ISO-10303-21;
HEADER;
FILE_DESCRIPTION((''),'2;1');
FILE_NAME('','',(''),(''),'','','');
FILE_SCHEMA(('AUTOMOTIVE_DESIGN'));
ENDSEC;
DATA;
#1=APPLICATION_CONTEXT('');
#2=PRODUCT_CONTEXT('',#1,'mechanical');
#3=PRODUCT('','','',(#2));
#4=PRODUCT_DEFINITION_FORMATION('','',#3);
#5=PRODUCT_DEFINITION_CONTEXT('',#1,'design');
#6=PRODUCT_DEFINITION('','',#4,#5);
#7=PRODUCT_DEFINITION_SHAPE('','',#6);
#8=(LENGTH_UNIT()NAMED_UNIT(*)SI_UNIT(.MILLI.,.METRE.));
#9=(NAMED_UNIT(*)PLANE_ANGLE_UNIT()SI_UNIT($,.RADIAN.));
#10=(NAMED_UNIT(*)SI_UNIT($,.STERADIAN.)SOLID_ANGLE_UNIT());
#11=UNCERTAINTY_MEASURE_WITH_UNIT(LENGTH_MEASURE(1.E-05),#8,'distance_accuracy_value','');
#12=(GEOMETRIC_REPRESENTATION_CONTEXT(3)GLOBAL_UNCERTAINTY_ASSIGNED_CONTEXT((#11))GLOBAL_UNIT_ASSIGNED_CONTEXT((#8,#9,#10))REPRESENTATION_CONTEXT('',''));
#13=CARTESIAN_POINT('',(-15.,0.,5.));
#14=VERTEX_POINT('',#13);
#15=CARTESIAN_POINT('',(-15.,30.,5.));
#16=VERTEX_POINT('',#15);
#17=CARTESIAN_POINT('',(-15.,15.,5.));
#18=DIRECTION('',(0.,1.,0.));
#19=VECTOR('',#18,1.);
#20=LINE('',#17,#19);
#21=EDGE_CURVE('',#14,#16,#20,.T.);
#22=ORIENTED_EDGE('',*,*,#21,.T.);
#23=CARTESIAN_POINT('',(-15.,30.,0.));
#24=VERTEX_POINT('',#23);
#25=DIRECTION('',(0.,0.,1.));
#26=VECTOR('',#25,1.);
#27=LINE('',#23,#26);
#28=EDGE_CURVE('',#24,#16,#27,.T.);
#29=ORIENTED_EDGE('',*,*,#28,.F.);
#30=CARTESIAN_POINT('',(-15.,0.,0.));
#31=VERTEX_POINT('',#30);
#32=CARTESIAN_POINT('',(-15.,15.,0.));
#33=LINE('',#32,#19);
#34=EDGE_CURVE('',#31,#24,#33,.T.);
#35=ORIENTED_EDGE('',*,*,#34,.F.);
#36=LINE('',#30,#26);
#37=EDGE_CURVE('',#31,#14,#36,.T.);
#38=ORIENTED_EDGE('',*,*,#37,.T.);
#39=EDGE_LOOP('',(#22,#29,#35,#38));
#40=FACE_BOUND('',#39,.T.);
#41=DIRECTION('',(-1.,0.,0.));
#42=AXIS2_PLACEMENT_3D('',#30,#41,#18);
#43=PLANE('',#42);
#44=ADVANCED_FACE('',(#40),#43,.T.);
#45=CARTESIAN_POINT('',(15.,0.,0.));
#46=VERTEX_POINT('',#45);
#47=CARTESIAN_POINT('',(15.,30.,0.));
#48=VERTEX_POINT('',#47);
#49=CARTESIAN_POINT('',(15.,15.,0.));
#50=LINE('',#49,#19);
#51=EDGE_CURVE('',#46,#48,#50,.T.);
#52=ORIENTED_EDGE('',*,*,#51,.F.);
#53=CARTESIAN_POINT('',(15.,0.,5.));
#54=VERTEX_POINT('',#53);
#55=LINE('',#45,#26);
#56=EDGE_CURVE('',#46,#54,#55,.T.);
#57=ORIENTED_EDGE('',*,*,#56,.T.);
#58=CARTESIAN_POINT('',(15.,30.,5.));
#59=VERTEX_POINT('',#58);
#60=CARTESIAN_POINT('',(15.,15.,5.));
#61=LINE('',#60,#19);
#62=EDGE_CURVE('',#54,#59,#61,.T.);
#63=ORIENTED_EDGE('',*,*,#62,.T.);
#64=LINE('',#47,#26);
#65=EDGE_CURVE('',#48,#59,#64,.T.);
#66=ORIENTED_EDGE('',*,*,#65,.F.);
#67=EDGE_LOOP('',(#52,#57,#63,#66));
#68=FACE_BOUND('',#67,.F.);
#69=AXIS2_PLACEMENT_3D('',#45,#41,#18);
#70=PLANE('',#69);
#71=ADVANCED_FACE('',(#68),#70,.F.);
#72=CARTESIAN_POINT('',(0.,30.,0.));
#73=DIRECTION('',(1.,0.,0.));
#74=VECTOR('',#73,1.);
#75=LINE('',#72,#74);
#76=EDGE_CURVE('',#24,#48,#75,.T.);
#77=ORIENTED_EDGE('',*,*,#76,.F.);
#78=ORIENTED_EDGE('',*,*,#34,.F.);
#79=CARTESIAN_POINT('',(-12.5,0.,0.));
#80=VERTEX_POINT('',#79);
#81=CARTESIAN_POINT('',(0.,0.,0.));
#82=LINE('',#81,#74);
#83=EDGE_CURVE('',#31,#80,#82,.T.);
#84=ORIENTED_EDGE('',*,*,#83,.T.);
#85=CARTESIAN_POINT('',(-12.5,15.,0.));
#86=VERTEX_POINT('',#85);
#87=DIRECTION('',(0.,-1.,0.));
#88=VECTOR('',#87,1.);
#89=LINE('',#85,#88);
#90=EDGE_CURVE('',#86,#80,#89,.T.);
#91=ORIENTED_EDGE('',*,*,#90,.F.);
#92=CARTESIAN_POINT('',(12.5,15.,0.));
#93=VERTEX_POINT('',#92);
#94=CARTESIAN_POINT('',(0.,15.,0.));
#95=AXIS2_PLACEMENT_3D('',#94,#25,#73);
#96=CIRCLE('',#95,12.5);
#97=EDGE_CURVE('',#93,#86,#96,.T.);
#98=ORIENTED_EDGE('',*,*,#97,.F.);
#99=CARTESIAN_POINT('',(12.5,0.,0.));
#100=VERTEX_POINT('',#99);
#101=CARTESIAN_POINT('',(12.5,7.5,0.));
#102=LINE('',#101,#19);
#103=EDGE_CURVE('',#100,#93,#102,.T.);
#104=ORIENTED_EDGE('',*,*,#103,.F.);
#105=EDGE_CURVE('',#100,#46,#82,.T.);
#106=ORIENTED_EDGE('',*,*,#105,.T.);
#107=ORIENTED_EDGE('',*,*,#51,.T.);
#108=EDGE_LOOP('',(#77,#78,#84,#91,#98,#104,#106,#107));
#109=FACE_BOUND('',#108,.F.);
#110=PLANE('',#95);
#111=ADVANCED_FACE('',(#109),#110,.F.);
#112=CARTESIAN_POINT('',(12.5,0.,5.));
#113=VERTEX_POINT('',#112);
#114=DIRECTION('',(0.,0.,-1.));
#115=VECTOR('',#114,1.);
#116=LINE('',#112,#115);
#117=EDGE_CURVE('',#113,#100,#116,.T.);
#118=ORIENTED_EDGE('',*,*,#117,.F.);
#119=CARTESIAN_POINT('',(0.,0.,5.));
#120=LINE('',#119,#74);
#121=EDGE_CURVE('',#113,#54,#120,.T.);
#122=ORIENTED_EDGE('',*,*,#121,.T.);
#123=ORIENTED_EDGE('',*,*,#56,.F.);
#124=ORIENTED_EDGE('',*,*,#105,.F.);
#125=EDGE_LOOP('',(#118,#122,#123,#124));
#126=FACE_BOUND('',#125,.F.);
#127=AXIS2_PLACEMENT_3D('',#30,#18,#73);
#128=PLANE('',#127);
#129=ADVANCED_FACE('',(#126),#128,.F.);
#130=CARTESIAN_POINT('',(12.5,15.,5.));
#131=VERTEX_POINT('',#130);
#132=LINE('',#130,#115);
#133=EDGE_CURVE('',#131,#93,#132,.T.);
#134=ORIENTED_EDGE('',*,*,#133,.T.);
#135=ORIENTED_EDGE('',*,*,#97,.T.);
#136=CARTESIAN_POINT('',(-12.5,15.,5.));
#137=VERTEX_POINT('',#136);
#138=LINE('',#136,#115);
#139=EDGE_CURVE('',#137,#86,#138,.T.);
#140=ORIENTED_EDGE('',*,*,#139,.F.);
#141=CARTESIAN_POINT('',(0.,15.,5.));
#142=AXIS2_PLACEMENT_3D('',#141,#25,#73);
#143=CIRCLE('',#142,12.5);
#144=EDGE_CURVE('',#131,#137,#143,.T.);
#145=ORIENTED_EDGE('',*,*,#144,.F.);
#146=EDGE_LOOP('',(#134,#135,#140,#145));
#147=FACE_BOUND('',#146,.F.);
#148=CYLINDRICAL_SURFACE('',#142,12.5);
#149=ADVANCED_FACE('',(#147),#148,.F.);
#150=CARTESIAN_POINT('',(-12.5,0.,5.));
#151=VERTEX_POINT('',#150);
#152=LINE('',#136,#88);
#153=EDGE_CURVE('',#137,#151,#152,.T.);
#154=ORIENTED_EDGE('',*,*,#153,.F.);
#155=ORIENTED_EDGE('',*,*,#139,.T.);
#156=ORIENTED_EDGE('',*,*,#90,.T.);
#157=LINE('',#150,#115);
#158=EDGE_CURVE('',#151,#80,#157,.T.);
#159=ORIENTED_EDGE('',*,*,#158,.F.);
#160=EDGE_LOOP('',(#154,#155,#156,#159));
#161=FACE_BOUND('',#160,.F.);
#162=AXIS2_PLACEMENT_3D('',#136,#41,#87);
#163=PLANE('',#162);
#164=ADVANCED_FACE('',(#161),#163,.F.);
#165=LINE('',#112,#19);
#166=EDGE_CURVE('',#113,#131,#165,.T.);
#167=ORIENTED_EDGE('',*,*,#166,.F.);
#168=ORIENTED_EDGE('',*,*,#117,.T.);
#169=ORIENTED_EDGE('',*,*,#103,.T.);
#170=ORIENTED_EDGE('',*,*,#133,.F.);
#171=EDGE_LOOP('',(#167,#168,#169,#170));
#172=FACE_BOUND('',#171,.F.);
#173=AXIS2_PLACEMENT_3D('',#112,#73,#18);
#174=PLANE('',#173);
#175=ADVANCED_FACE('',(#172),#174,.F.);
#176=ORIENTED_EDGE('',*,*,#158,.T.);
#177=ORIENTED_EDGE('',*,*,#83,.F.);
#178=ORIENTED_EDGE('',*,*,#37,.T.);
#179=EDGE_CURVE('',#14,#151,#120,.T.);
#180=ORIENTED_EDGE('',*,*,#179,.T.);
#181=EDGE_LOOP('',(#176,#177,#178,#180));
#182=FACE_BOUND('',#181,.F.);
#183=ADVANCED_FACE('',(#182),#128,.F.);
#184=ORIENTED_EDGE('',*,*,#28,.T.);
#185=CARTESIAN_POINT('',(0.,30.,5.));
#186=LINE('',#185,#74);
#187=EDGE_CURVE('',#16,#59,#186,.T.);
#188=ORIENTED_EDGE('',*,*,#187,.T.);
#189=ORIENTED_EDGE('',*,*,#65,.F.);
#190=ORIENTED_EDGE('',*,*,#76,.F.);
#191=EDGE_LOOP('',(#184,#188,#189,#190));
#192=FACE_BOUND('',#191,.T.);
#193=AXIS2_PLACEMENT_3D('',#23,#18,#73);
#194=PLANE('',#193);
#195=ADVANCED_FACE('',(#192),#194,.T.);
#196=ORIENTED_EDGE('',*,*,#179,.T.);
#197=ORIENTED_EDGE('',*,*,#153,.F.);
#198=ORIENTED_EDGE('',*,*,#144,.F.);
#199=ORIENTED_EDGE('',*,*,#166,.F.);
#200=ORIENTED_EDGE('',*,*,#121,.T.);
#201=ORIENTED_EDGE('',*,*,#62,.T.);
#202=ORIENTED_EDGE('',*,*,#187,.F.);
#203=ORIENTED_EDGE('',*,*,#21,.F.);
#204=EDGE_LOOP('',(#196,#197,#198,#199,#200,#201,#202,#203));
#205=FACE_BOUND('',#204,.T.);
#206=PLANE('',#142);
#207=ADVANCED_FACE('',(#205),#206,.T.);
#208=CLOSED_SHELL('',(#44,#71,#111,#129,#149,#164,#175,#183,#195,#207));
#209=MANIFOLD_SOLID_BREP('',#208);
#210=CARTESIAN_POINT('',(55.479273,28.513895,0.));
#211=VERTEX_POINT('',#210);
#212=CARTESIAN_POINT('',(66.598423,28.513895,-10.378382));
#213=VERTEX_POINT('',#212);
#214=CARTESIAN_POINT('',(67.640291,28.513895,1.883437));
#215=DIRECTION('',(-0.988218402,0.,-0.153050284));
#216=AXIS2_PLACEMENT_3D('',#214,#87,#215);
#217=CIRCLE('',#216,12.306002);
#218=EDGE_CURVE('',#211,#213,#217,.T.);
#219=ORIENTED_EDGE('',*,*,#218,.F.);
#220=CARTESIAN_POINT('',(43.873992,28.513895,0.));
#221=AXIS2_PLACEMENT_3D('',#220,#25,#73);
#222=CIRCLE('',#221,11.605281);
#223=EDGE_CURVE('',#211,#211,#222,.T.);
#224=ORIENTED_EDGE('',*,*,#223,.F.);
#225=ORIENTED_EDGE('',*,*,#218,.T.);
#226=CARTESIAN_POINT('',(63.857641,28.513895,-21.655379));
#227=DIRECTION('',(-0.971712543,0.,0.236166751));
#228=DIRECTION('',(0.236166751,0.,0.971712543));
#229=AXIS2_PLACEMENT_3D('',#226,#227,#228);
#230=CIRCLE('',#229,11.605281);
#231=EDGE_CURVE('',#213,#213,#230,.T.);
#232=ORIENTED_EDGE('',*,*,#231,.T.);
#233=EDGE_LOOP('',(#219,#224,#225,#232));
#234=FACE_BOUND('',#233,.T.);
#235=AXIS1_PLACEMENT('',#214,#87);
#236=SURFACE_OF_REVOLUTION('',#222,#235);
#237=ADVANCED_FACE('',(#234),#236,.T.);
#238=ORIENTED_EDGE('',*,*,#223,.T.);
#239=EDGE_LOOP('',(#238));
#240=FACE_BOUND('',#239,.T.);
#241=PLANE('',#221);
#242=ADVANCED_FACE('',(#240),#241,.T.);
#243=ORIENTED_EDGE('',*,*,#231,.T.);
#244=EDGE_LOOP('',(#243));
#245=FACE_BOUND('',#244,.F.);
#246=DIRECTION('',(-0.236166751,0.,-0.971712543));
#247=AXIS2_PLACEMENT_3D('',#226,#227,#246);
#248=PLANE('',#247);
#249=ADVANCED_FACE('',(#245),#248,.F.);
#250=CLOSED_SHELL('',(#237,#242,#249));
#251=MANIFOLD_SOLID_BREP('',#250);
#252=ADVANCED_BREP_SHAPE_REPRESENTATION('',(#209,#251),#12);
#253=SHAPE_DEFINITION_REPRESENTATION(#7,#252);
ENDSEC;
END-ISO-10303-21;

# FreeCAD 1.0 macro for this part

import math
import FreeCAD as App
import Part
import Sketcher

V = App.Vector

doc = App.newDocument("Part")
body = doc.addObject("PartDesign::Body", "Body")

# Sketch on XY plane
sketch1 = body.newObject("Sketcher::SketchObject", "Sketch")
sketch1.AttachmentSupport = (doc.getObject("XY_Plane"), [""])
sketch1.MapMode = "FlatFace"
sketch1.addGeometry([
    Part.LineSegment(V(-15, 30, 0), V(-15, 0, 0)),
    Part.LineSegment(V(-15, 0, 0), V(15, 0, 0)),
    Part.LineSegment(V(15, 0, 0), V(15, 30, 0)),
    Part.LineSegment(V(15, 30, 0), V(-15, 30, 0)),
], False)
sketch1.addConstraint([
    Sketcher.Constraint("Coincident", 0, 2, 1, 1),
    Sketcher.Constraint("Coincident", 1, 2, 2, 1),
    Sketcher.Constraint("Coincident", 2, 2, 3, 1),
    Sketcher.Constraint("Coincident", 3, 2, 0, 1),
    Sketcher.Constraint("Vertical", 0),
    Sketcher.Constraint("Horizontal", 1),
    Sketcher.Constraint("Vertical", 2),
    Sketcher.Constraint("Horizontal", 3),
    Sketcher.Constraint("Symmetric", 0, 2, 1, 2, -1, 1),
    Sketcher.Constraint("Equal", 3, 0),
    Sketcher.Constraint("DistanceX", 1, 1, 1, 2, 30.0),
])
pad1 = body.newObject("PartDesign::Pad", "Pad")
pad1.Profile = sketch1
pad1.Length = 5

# Sketch on XY plane
sketch2 = body.newObject("Sketcher::SketchObject", "Sketch001")
sketch2.AttachmentSupport = (doc.getObject("XY_Plane"), [""])
sketch2.MapMode = "FlatFace"
sketch2.AttachmentOffset = App.Placement(V(0, 0, 5), App.Rotation())
sketch2.addGeometry([
    Part.LineSegment(V(12.5, 0, 0), V(12.5, 15, 0)),
    Part.ArcOfCircle(Part.Circle(V(0, 15, 0), V(0, 0, 1), 12.5), math.radians(0), math.radians(180)),
    Part.LineSegment(V(-12.5, 15, 0), V(-12.5, 0, 0)),
    Part.LineSegment(V(-12.5, 0, 0), V(12.5, 0, 0)),
], False)
sketch2.addConstraint([
    Sketcher.Constraint("Tangent", 0, 2, 1, 1),
    Sketcher.Constraint("Tangent", 1, 2, 2, 1),
    Sketcher.Constraint("Coincident", 2, 2, 3, 1),
    Sketcher.Constraint("Coincident", 3, 2, 0, 1),
    Sketcher.Constraint("Vertical", 0),
    Sketcher.Constraint("Vertical", 2),
    Sketcher.Constraint("Horizontal", 3),
    Sketcher.Constraint("Symmetric", 2, 2, 3, 2, -1, 1),
    Sketcher.Constraint("Radius", 1, 12.5),
    Sketcher.Constraint("DistanceY", 0, 1, 0, 2, 15.0),
])
pocket1 = body.newObject("PartDesign::Pocket", "Pocket")
pocket1.Profile = sketch2
pocket1.Length = 25
body2 = doc.addObject("PartDesign::Body", "Body001")

# Sketch on XY plane
sketch3 = body2.newObject("Sketcher::SketchObject", "Sketch002")
sketch3.AttachmentSupport = (doc.getObject("XY_Plane001"), [""])
sketch3.MapMode = "FlatFace"
sketch3.addGeometry(Part.Circle(V(43.873992, 28.513895, 0), V(0, 0, 1), 11.605281), False)
sketch3.addConstraint([
    Sketcher.Constraint("Diameter", 0, 23.210562),
    Sketcher.Constraint("DistanceX", -1, 1, 0, 3, 43.873992),
    Sketcher.Constraint("DistanceY", -1, 1, 0, 3, 28.513895),
])

# Sketch on XZ plane
sketch4 = body2.newObject("Sketcher::SketchObject", "Sketch003")
sketch4.AttachmentSupport = (doc.getObject("XZ_Plane001"), [""])
sketch4.MapMode = "FlatFace"
sketch4.addGeometry(Part.ArcOfCircle(Part.Circle(V(67.640291, 1.883437, 0), V(0, 0, 1), 23.840812), math.radians(-175.468881), math.radians(-99.129289)), False)
sketch4.addConstraint([
    Sketcher.Constraint("PointOnObject", 0, 1, -1),
    Sketcher.Constraint("Radius", 0, 23.840812),
    Sketcher.Constraint("DistanceX", 0, 1, 0, 3, 23.766299),
    Sketcher.Constraint("DistanceX", -1, 1, 0, 3, 67.640291),
    Sketcher.Constraint("DistanceX", -1, 1, 0, 2, 63.857641),
])
doc.recompute()

additivepipe = body2.newObject("PartDesign::AdditivePipe", "AdditivePipe")
additivepipe.Profile = sketch3
additivepipe.Spine = (sketch4, ["Edge1"])

doc.recompute()
